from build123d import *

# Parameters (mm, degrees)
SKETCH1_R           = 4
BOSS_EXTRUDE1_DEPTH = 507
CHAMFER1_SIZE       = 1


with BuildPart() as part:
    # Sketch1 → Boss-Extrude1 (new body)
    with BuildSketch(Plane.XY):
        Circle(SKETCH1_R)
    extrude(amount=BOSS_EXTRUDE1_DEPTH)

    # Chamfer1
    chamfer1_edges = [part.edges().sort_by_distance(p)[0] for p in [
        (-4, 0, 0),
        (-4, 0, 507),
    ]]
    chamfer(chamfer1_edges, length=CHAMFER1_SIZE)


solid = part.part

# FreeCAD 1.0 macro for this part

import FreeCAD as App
import Part
import Sketcher


def edges_at(feature, points):
    """Names of the edges that pass closest to the given points."""
    edges = feature.Shape.Edges
    near = lambda p: min(range(len(edges)), key=lambda i: edges[i].distToShape(Part.Vertex(*p))[0])
    return sorted({f"Edge{near(p) + 1}" for p in points})

doc = App.newDocument("Part")
body = doc.addObject("PartDesign::Body", "Body")

sketch1 = body.newObject("Sketcher::SketchObject", "Sketch")
sketch1.AttachmentSupport = (doc.getObject("XY_Plane"), [""])
sketch1.MapMode = "FlatFace"
sketch1.addGeometry(Part.Circle(App.Vector(0, 0, 0), App.Vector(0, 0, 1), 4), False)
sketch1.addConstraint([
    Sketcher.Constraint("Coincident", 0, 3, -1, 1),
    Sketcher.Constraint("Diameter", 0, 8.0),
])
pad1 = body.newObject("PartDesign::Pad", "Pad")
pad1.Profile = sketch1
pad1.Length = 507
doc.recompute()

chamfer = body.newObject("PartDesign::Chamfer", "Chamfer")
chamfer.Base = (pad1, edges_at(pad1, [(-4, 0, 0), (-4, 0, 507)]))
chamfer.Size = 1

doc.recompute()
